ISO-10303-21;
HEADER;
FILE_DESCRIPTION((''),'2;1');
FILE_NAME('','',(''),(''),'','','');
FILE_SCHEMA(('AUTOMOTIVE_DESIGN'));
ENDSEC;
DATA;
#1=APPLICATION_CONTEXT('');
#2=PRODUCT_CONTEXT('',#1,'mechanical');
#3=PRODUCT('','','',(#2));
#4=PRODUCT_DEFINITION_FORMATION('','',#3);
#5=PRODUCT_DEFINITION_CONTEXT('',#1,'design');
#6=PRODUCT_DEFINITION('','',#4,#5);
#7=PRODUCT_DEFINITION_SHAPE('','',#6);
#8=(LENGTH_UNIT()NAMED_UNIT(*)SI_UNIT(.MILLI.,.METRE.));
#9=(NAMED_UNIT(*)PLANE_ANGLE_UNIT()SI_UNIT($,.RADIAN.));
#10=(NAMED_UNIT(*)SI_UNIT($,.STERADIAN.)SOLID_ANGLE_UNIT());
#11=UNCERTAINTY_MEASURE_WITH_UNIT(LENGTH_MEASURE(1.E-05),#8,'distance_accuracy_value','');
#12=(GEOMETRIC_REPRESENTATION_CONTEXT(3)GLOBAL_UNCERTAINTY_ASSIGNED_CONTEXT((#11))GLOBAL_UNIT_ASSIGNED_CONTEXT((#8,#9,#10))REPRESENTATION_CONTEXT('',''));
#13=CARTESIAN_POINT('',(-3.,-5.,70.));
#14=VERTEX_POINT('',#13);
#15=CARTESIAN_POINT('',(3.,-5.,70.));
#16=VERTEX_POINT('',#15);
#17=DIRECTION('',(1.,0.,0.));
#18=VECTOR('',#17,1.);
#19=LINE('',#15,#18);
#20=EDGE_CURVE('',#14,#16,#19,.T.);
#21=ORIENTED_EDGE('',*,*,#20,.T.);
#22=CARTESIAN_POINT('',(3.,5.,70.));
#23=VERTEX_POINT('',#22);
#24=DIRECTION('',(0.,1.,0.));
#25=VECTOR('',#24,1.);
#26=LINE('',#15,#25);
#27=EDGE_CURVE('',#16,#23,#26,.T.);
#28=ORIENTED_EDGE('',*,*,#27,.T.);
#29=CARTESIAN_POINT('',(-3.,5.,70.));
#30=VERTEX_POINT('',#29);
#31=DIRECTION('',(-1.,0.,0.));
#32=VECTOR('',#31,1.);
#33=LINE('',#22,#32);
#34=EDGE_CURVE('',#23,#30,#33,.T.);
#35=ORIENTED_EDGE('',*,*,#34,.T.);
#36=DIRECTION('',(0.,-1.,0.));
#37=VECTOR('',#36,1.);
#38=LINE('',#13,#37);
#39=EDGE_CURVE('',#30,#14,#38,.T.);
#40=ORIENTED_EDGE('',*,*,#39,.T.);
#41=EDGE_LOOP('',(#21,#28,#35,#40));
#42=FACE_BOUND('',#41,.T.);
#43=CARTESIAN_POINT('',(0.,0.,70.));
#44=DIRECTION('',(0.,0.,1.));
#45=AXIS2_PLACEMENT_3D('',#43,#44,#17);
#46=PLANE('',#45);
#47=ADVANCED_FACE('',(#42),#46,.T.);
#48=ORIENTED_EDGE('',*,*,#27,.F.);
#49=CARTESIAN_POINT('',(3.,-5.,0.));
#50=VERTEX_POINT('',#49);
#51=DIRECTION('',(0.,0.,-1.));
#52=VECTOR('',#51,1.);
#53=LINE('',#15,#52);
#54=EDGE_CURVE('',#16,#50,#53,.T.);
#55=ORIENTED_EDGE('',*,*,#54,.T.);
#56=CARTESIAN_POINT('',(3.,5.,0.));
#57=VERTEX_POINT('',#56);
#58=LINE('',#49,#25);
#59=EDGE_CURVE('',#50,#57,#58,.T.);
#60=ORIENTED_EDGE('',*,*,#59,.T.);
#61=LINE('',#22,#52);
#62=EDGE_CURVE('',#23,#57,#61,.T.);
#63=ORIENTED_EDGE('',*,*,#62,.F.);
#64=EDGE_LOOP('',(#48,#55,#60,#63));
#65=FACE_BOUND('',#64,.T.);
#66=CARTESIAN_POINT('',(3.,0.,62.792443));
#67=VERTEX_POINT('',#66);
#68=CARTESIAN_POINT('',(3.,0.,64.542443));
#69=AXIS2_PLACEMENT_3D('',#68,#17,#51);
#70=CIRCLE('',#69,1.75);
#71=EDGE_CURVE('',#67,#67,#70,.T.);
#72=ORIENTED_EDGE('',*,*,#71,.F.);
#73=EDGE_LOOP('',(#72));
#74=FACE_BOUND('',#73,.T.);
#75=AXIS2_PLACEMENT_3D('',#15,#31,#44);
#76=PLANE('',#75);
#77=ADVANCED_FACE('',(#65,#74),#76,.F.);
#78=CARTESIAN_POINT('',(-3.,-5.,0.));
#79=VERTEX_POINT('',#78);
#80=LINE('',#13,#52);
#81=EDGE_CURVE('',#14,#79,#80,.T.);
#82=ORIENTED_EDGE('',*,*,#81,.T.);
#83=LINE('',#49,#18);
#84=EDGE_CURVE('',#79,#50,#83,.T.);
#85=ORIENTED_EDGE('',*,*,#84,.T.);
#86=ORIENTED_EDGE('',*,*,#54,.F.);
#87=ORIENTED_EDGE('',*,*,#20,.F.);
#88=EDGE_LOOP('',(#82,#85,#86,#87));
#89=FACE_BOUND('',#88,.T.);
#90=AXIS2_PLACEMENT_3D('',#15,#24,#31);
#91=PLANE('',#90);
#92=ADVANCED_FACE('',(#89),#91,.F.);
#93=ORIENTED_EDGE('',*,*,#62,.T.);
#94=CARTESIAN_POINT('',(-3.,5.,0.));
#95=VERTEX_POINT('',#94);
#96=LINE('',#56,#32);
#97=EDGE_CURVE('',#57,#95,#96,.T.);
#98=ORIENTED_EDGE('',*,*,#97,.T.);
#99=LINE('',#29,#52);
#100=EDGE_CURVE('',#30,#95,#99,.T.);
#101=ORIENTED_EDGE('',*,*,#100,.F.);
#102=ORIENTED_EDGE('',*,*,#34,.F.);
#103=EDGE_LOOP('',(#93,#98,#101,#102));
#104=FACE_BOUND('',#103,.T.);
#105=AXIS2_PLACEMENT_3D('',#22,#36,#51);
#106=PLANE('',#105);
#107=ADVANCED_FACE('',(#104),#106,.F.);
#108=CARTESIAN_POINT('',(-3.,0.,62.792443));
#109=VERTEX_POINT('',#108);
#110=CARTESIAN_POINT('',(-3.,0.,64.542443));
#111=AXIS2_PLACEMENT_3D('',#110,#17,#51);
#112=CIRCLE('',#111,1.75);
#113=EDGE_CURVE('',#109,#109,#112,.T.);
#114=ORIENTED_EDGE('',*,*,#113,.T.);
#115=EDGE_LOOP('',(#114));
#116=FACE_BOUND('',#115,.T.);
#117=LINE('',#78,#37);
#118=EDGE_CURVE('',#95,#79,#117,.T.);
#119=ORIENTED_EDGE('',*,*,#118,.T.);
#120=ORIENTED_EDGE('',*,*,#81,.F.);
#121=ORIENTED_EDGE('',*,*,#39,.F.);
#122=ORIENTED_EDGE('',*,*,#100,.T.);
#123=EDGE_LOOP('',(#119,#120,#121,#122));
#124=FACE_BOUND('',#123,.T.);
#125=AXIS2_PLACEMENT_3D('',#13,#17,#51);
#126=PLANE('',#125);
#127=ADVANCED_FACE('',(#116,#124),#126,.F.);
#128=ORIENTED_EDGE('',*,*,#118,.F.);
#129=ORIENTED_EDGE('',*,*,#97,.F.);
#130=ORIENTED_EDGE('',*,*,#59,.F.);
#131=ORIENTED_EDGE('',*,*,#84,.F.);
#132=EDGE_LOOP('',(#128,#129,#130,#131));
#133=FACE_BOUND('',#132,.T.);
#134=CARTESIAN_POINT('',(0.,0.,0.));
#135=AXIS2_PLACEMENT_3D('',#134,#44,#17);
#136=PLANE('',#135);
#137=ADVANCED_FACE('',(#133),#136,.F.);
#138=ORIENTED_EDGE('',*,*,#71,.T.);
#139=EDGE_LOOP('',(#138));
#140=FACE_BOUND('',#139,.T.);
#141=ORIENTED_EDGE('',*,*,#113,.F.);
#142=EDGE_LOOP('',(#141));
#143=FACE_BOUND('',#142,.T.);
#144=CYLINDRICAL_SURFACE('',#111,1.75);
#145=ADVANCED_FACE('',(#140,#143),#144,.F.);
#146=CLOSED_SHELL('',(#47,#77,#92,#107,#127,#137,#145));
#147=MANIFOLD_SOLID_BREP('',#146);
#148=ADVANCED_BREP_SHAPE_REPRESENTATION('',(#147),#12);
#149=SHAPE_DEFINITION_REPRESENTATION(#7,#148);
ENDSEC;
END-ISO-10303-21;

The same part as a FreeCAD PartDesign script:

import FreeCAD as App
import Part
import Sketcher
from FreeCAD import Vector


def add_polygon(sketch, points):
    """Adds a closed chain of lines whose ends are joined by coincident constraints."""
    first, n = sketch.GeometryCount, len(points)
    for a, b in zip(points, points[1:] + points[:1]):
        sketch.addGeometry(Part.LineSegment(App.Vector(*a, 0), App.Vector(*b, 0)), False)
    for i in range(n):
        sketch.addConstraint(Sketcher.Constraint("Coincident", first + i, 2, first + (i + 1) % n, 1))

doc = App.newDocument("Part")
body = doc.addObject("PartDesign::Body", "Body")

# Sketch on XY plane
sketch1 = body.newObject("Sketcher::SketchObject", "Sketch")
sketch1.AttachmentSupport = (doc.getObject("XY_Plane"), [""])
sketch1.MapMode = "FlatFace"
add_polygon(sketch1, [(-3, 5), (-3, -5), (3, -5), (3, 5)])  # lines 0-3
sketch1.addConstraint(Sketcher.Constraint("Vertical", 0))
sketch1.addConstraint(Sketcher.Constraint("Horizontal", 1))
sketch1.addConstraint(Sketcher.Constraint("Vertical", 2))
sketch1.addConstraint(Sketcher.Constraint("Horizontal", 3))
sketch1.addConstraint(Sketcher.Constraint("Symmetric", 0, 2, 2, 2, -1, 1))
sketch1.addConstraint(Sketcher.Constraint("DistanceX", 1, 1, 1, 2, 6.0))
sketch1.addConstraint(Sketcher.Constraint("DistanceY", 0, 2, 0, 1, 10.0))
pad1 = body.newObject("PartDesign::Pad", "Pad")
pad1.Profile = sketch1
pad1.Length = 70

# Sketch on YZ plane
sketch2 = body.newObject("Sketcher::SketchObject", "Sketch001")
sketch2.AttachmentSupport = (doc.getObject("YZ_Plane"), [""])
sketch2.MapMode = "FlatFace"
sketch2.AttachmentOffset = App.Placement(Vector(0, 0, 3), App.Rotation())
sketch2.addGeometry(Part.Circle(Vector(0, 64.5, 0), Vector(0, 0, 1), 1.8), False)
sketch2.addConstraint(Sketcher.Constraint("PointOnObject", 0, 3, -2))
sketch2.addConstraint(Sketcher.Constraint("Diameter", 0, 3.5))
sketch2.addConstraint(Sketcher.Constraint("DistanceY", -1, 1, 0, 3, 64.542443))
pocket1 = body.newObject("PartDesign::Pocket", "Pocket")
pocket1.Profile = sketch2
pocket1.Type = "ThroughAll"

doc.recompute()
